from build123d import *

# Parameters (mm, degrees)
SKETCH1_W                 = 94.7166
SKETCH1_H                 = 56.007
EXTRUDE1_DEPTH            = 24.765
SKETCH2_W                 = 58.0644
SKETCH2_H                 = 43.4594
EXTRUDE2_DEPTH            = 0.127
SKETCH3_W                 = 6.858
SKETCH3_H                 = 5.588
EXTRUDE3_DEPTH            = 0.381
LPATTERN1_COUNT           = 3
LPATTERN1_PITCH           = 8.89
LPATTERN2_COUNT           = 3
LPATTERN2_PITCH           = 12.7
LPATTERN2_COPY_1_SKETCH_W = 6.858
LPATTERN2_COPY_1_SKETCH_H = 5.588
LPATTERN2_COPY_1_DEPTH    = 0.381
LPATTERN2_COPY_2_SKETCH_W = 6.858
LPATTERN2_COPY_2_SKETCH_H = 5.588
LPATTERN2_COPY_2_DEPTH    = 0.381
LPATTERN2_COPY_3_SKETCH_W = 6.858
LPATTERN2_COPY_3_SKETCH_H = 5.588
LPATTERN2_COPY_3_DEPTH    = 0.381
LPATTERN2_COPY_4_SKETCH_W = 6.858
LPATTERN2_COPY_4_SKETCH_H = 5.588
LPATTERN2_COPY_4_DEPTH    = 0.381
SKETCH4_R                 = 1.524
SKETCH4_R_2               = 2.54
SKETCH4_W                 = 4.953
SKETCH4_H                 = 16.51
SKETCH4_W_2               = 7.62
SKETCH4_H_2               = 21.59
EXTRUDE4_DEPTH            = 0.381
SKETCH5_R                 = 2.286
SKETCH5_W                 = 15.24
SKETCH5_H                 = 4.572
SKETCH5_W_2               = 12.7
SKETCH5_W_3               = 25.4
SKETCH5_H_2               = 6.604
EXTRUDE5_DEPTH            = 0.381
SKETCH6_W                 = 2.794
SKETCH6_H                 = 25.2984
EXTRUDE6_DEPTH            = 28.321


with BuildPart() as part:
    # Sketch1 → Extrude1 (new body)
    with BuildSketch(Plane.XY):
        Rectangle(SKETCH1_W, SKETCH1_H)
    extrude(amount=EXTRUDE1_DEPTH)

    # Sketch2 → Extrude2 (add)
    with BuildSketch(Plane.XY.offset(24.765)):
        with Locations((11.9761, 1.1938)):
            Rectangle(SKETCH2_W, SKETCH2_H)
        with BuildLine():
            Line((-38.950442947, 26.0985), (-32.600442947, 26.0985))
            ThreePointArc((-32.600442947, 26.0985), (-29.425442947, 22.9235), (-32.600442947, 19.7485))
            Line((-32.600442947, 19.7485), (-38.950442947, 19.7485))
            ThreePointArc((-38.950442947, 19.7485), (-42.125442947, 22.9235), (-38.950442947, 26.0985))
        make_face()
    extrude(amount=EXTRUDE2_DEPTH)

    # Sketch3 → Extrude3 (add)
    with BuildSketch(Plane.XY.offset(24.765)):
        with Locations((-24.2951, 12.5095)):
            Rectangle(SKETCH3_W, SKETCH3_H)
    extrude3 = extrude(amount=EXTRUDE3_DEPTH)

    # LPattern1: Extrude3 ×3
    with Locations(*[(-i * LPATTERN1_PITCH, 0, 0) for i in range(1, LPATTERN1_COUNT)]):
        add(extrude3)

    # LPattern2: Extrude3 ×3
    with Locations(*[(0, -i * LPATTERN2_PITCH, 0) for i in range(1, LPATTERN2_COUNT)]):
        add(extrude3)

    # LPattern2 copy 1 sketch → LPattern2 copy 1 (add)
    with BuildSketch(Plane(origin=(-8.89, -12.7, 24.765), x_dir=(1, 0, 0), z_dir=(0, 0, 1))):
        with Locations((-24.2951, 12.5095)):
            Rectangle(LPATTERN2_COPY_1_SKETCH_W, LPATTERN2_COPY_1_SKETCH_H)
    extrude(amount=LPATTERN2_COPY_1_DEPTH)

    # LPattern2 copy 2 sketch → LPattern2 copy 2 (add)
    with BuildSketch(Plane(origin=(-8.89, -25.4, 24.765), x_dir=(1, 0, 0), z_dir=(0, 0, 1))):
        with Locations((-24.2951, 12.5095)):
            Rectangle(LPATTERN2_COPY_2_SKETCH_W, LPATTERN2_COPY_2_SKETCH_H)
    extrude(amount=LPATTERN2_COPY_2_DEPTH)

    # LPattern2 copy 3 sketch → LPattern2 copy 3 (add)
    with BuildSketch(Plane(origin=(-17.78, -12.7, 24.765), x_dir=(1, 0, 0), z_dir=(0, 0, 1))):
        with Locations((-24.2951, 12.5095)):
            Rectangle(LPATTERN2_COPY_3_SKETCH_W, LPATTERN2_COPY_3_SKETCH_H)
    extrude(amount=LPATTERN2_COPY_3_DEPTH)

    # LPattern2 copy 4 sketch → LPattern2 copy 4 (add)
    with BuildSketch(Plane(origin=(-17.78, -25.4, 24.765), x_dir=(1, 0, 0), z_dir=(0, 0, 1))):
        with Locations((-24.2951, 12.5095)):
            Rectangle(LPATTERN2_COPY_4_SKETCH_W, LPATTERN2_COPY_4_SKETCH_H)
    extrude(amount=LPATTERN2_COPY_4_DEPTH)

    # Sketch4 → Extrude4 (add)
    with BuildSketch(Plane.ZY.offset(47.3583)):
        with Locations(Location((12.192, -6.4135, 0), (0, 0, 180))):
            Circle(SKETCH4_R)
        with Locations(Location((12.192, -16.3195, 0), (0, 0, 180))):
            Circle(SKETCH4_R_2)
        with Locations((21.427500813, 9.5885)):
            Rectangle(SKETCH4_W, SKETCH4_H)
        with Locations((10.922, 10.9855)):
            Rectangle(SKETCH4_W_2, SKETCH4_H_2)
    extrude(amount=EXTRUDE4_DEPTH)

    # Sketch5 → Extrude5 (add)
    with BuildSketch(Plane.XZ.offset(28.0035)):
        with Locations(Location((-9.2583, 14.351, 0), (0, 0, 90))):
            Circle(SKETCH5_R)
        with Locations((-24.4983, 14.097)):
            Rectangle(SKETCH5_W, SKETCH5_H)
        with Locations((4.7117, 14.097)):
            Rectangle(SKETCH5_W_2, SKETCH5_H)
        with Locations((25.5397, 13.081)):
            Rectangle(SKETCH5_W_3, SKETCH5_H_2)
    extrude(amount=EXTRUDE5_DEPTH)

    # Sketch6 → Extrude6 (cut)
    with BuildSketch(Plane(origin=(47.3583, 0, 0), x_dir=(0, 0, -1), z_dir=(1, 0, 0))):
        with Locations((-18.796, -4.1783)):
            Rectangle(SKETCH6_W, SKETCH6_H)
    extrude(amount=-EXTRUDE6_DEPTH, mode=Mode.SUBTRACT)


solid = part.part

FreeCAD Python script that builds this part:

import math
import FreeCAD as App
import Part
import Sketcher

V = App.Vector
Q = App.Units.Quantity


def add_polygon(sketch, points):
    """Adds a closed chain of lines whose ends are joined by coincident constraints."""
    first, n = sketch.GeometryCount, len(points)
    for a, b in zip(points, points[1:] + points[:1]):
        sketch.addGeometry(Part.LineSegment(App.Vector(*a, 0), App.Vector(*b, 0)), False)
    for i in range(n):
        sketch.addConstraint(Sketcher.Constraint("Coincident", first + i, 2, first + (i + 1) % n, 1))

doc = App.newDocument("Part")
params = doc.addObject("Spreadsheet::Sheet", "Params")
for row, (alias, value) in enumerate([
    ("sketch1_width", "3.729 in"),
    ("sketch1_height", "2.205 in"),
    ("pad1_length", "0.975 in"),
    ("sketch2_radius", "0.125 in"),
    ("sketch2_width", "0.25 in"),
    ("sketch2_width2", "2.286 in"),
    ("sketch2_height", "1.711 in"),
    ("pad2_length", "0.005 in"),
    ("sketch3_width", "0.27 in"),
    ("sketch3_height", "0.22 in"),
    ("pad3_length", "0.015 in"),
    ("linearpattern_pitch", "0.35 in"),
    ("linearpattern2_pitch", "0.5 in"),
    ("sketch4_width", "0.27 in"),
    ("sketch4_height", "0.22 in"),
    ("pad4_length", "0.015 in"),
    ("sketch5_width", "0.27 in"),
    ("sketch5_height", "0.22 in"),
    ("pad5_length", "0.015 in"),
    ("sketch6_width", "0.27 in"),
    ("sketch6_height", "0.22 in"),
    ("pad6_length", "0.015 in"),
    ("sketch7_width", "0.27 in"),
    ("sketch7_height", "0.22 in"),
    ("pad7_length", "0.015 in"),
    ("sketch8_diameter", "0.2 in"),
    ("sketch8_diameter2", "0.12 in"),
    ("sketch8_height", "0.3 in"),
    ("sketch8_width", "0.65 in"),
    ("sketch8_width2", "0.85 in"),
    ("pad8_length", "0.015 in"),
    ("sketch9_diameter", "0.18 in"),
    ("sketch9_width", "1 in"),
    ("sketch9_width2", "0.6 in"),
    ("sketch9_width3", "0.5 in"),
    ("sketch9_height", "0.18 in"),
    ("pad9_length", "0.015 in"),
    ("sketch10_height", "0.11 in"),
    ("sketch10_width", "0.996 in"),
    ("pocket1_length", "1.115 in"),
], start=1):
    params.set(f"A{row}", alias)
    params.set(f"B{row}", "=" + value)
    params.setAlias(f"B{row}", alias)

body = doc.addObject("PartDesign::Body", "Body")

sketch1 = body.newObject("Sketcher::SketchObject", "Sketch")
sketch1.AttachmentSupport = (doc.getObject("XY_Plane"), [""])
sketch1.MapMode = "FlatFace"
add_polygon(sketch1, [(-47.3583, 28.0035), (-47.3583, -28.0035), (47.3583, -28.0035), (47.3583, 28.0035)])
sketch1.addConstraint(Sketcher.Constraint("Vertical", 0))
sketch1.addConstraint(Sketcher.Constraint("Horizontal", 1))
sketch1.addConstraint(Sketcher.Constraint("Vertical", 2))
sketch1.addConstraint(Sketcher.Constraint("Horizontal", 3))
sketch1.addConstraint(Sketcher.Constraint("Symmetric", 0, 2, 2, 2, -1, 1))
sketch1.addConstraint(Sketcher.Constraint("DistanceX", 1, 1, 1, 2, Q("3.729 in")))
sketch1.addConstraint(Sketcher.Constraint("DistanceY", 0, 2, 0, 1, Q("2.205 in")))
sketch1.setExpression("Constraints[9]", "Params.sketch1_width")
sketch1.setExpression("Constraints[10]", "Params.sketch1_height")
pad1 = body.newObject("PartDesign::Pad", "Pad")
pad1.Profile = sketch1
pad1.setExpression("Length", "Params.pad1_length")

sketch2 = body.newObject("Sketcher::SketchObject", "Sketch001")
sketch2.AttachmentSupport = (doc.getObject("XY_Plane"), [""])
sketch2.MapMode = "FlatFace"
sketch2.AttachmentOffset = App.Placement(V(0, 0, 0.975 * 25.4), App.Rotation())
add_polygon(sketch2, [(-17.0561, 22.9235), (-17.0561, -20.5359), (41.0083, -20.5359), (41.0083, 22.9235)])
sketch2.addGeometry(Part.LineSegment(V(-32.600443, 26.0985, 0), V(-38.950443, 26.0985, 0)), False)
sketch2.addGeometry(Part.ArcOfCircle(Part.Circle(V(-38.950443, 22.9235, 0), V(0, 0, 1), 3.175), math.radians(90), math.radians(270)), False)
sketch2.addGeometry(Part.LineSegment(V(-38.950443, 19.7485, 0), V(-32.600443, 19.7485, 0)), False)
sketch2.addGeometry(Part.ArcOfCircle(Part.Circle(V(-32.600443, 22.9235, 0), V(0, 0, 1), 3.175), math.radians(-90), math.radians(90)), False)
sketch2.addConstraint(Sketcher.Constraint("Tangent", 4, 2, 5, 1))
sketch2.addConstraint(Sketcher.Constraint("Tangent", 5, 2, 6, 1))
sketch2.addConstraint(Sketcher.Constraint("Tangent", 6, 2, 7, 1))
sketch2.addConstraint(Sketcher.Constraint("Tangent", 7, 2, 4, 1))
sketch2.addConstraint(Sketcher.Constraint("Vertical", 0))
sketch2.addConstraint(Sketcher.Constraint("Horizontal", 1))
sketch2.addConstraint(Sketcher.Constraint("Vertical", 2))
sketch2.addConstraint(Sketcher.Constraint("Horizontal", 3))
sketch2.addConstraint(Sketcher.Constraint("Horizontal", 4))
sketch2.addConstraint(Sketcher.Constraint("Horizontal", 6))
sketch2.addConstraint(Sketcher.Constraint("Horizontal", 7, 3, 2, 2))
sketch2.addConstraint(Sketcher.Constraint("Radius", 5, Q("0.125 in")))
sketch2.addConstraint(Sketcher.Constraint("DistanceX", 4, 2, 4, 1, Q("0.25 in")))
sketch2.addConstraint(Sketcher.Constraint("DistanceX", 1, 1, 1, 2, Q("2.286 in")))
sketch2.addConstraint(Sketcher.Constraint("DistanceY", 0, 2, 0, 1, Q("1.711 in")))
sketch2.addConstraint(Sketcher.Constraint("DistanceY", -1, 1, 5, 3, Q("0.9025 in")))
sketch2.addConstraint(Sketcher.Constraint("DistanceX", 0, 2, -1, 1, Q("0.6715 in")))
sketch2.addConstraint(Sketcher.Constraint("DistanceX", 5, 3, -1, 1, 38.950443))
sketch2.setExpression("Constraints[15]", "Params.sketch2_radius")
sketch2.setExpression("Constraints[16]", "Params.sketch2_width")
sketch2.setExpression("Constraints[17]", "Params.sketch2_width2")
sketch2.setExpression("Constraints[18]", "Params.sketch2_height")
pad2 = body.newObject("PartDesign::Pad", "Pad001")
pad2.Profile = sketch2
pad2.setExpression("Length", "Params.pad2_length")

sketch3 = body.newObject("Sketcher::SketchObject", "Sketch002")
sketch3.AttachmentSupport = (doc.getObject("XY_Plane"), [""])
sketch3.MapMode = "FlatFace"
sketch3.AttachmentOffset = App.Placement(V(0, 0, 0.975 * 25.4), App.Rotation())
add_polygon(sketch3, [(-27.7241, 15.3035), (-27.7241, 9.7155), (-20.8661, 9.7155), (-20.8661, 15.3035)])
sketch3.addConstraint(Sketcher.Constraint("Vertical", 0))
sketch3.addConstraint(Sketcher.Constraint("Horizontal", 1))
sketch3.addConstraint(Sketcher.Constraint("Vertical", 2))
sketch3.addConstraint(Sketcher.Constraint("Horizontal", 3))
sketch3.addConstraint(Sketcher.Constraint("DistanceX", 1, 1, 1, 2, Q("0.27 in")))
sketch3.addConstraint(Sketcher.Constraint("DistanceY", 0, 2, 0, 1, Q("0.22 in")))
sketch3.addConstraint(Sketcher.Constraint("DistanceX", 0, 2, -1, 1, Q("1.0915 in")))
sketch3.addConstraint(Sketcher.Constraint("DistanceY", -1, 1, 0, 2, Q("0.3825 in")))
sketch3.setExpression("Constraints[8]", "Params.sketch3_width")
sketch3.setExpression("Constraints[9]", "Params.sketch3_height")
pad3 = body.newObject("PartDesign::Pad", "Pad002")
pad3.Profile = sketch3
pad3.setExpression("Length", "Params.pad3_length")
doc.recompute()

linearpattern = body.newObject("PartDesign::LinearPattern", "LinearPattern")
linearpattern.Originals = [pad3]
linearpattern.Direction = (doc.getObject("X_Axis"), [""])
linearpattern.Mode = "offset"
linearpattern.setExpression("Offset", "Params.linearpattern_pitch")
linearpattern.Occurrences = 3
linearpattern.Reversed = True
body.Tip = linearpattern
doc.recompute()

linearpattern2 = body.newObject("PartDesign::LinearPattern", "LinearPattern001")
linearpattern2.Originals = [pad3]
linearpattern2.Direction = (doc.getObject("Y_Axis"), [""])
linearpattern2.Mode = "offset"
linearpattern2.setExpression("Offset", "Params.linearpattern2_pitch")
linearpattern2.Occurrences = 3
linearpattern2.Reversed = True
body.Tip = linearpattern2

sketch4 = body.newObject("Sketcher::SketchObject", "Sketch003")
sketch4.AttachmentSupport = (doc.getObject("XY_Plane"), [""])
sketch4.MapMode = "FlatFace"
sketch4.AttachmentOffset = App.Placement(V(0, 0, 0.975 * 25.4), App.Rotation())
add_polygon(sketch4, [(-36.6141, 2.6035), (-36.6141, -2.9845), (-29.7561, -2.9845), (-29.7561, 2.6035)])
sketch4.addConstraint(Sketcher.Constraint("Vertical", 0))
sketch4.addConstraint(Sketcher.Constraint("Horizontal", 1))
sketch4.addConstraint(Sketcher.Constraint("Vertical", 2))
sketch4.addConstraint(Sketcher.Constraint("Horizontal", 3))
sketch4.addConstraint(Sketcher.Constraint("DistanceX", 1, 1, 1, 2, Q("0.27 in")))
sketch4.addConstraint(Sketcher.Constraint("DistanceY", 0, 2, 0, 1, Q("0.22 in")))
sketch4.addConstraint(Sketcher.Constraint("DistanceX", 0, 2, -1, 1, Q("1.4415 in")))
sketch4.addConstraint(Sketcher.Constraint("DistanceY", 0, 2, -1, 1, Q("0.1175 in")))
sketch4.setExpression("Constraints[8]", "Params.sketch4_width")
sketch4.setExpression("Constraints[9]", "Params.sketch4_height")
pad4 = body.newObject("PartDesign::Pad", "Pad003")
pad4.Profile = sketch4
pad4.setExpression("Length", "Params.pad4_length")

sketch5 = body.newObject("Sketcher::SketchObject", "Sketch004")
sketch5.AttachmentSupport = (doc.getObject("XY_Plane"), [""])
sketch5.MapMode = "FlatFace"
sketch5.AttachmentOffset = App.Placement(V(0, 0, 0.975 * 25.4), App.Rotation())
add_polygon(sketch5, [(-36.6141, -10.0965), (-36.6141, -15.6845), (-29.7561, -15.6845), (-29.7561, -10.0965)])
sketch5.addConstraint(Sketcher.Constraint("Vertical", 0))
sketch5.addConstraint(Sketcher.Constraint("Horizontal", 1))
sketch5.addConstraint(Sketcher.Constraint("Vertical", 2))
sketch5.addConstraint(Sketcher.Constraint("Horizontal", 3))
sketch5.addConstraint(Sketcher.Constraint("DistanceX", 1, 1, 1, 2, Q("0.27 in")))
sketch5.addConstraint(Sketcher.Constraint("DistanceY", 0, 2, 0, 1, Q("0.22 in")))
sketch5.addConstraint(Sketcher.Constraint("DistanceX", 0, 2, -1, 1, Q("1.4415 in")))
sketch5.addConstraint(Sketcher.Constraint("DistanceY", 0, 2, -1, 1, Q("0.6175 in")))
sketch5.setExpression("Constraints[8]", "Params.sketch5_width")
sketch5.setExpression("Constraints[9]", "Params.sketch5_height")
pad5 = body.newObject("PartDesign::Pad", "Pad004")
pad5.Profile = sketch5
pad5.setExpression("Length", "Params.pad5_length")

sketch6 = body.newObject("Sketcher::SketchObject", "Sketch005")
sketch6.AttachmentSupport = (doc.getObject("XY_Plane"), [""])
sketch6.MapMode = "FlatFace"
sketch6.AttachmentOffset = App.Placement(V(0, 0, 0.975 * 25.4), App.Rotation())
add_polygon(sketch6, [(-45.5041, 2.6035), (-45.5041, -2.9845), (-38.6461, -2.9845), (-38.6461, 2.6035)])
sketch6.addConstraint(Sketcher.Constraint("Vertical", 0))
sketch6.addConstraint(Sketcher.Constraint("Horizontal", 1))
sketch6.addConstraint(Sketcher.Constraint("Vertical", 2))
sketch6.addConstraint(Sketcher.Constraint("Horizontal", 3))
sketch6.addConstraint(Sketcher.Constraint("DistanceX", 1, 1, 1, 2, Q("0.27 in")))
sketch6.addConstraint(Sketcher.Constraint("DistanceY", 0, 2, 0, 1, Q("0.22 in")))
sketch6.addConstraint(Sketcher.Constraint("DistanceX", 0, 2, -1, 1, Q("1.7915 in")))
sketch6.addConstraint(Sketcher.Constraint("DistanceY", 0, 2, -1, 1, Q("0.1175 in")))
sketch6.setExpression("Constraints[8]", "Params.sketch6_width")
sketch6.setExpression("Constraints[9]", "Params.sketch6_height")
pad6 = body.newObject("PartDesign::Pad", "Pad005")
pad6.Profile = sketch6
pad6.setExpression("Length", "Params.pad6_length")

sketch7 = body.newObject("Sketcher::SketchObject", "Sketch006")
sketch7.AttachmentSupport = (doc.getObject("XY_Plane"), [""])
sketch7.MapMode = "FlatFace"
sketch7.AttachmentOffset = App.Placement(V(0, 0, 0.975 * 25.4), App.Rotation())
add_polygon(sketch7, [(-45.5041, -10.0965), (-45.5041, -15.6845), (-38.6461, -15.6845), (-38.6461, -10.0965)])
sketch7.addConstraint(Sketcher.Constraint("Vertical", 0))
sketch7.addConstraint(Sketcher.Constraint("Horizontal", 1))
sketch7.addConstraint(Sketcher.Constraint("Vertical", 2))
sketch7.addConstraint(Sketcher.Constraint("Horizontal", 3))
sketch7.addConstraint(Sketcher.Constraint("DistanceX", 1, 1, 1, 2, Q("0.27 in")))
sketch7.addConstraint(Sketcher.Constraint("DistanceY", 0, 2, 0, 1, Q("0.22 in")))
sketch7.addConstraint(Sketcher.Constraint("DistanceX", 0, 2, -1, 1, Q("1.7915 in")))
sketch7.addConstraint(Sketcher.Constraint("DistanceY", 0, 2, -1, 1, Q("0.6175 in")))
sketch7.setExpression("Constraints[8]", "Params.sketch7_width")
sketch7.setExpression("Constraints[9]", "Params.sketch7_height")
pad7 = body.newObject("PartDesign::Pad", "Pad006")
pad7.Profile = sketch7
pad7.setExpression("Length", "Params.pad7_length")

sketch8 = body.newObject("Sketcher::SketchObject", "Sketch007")
sketch8.AttachmentSupport = (doc.getObject("YZ_Plane"), [""])
sketch8.MapMode = "FlatFace"
sketch8.AttachmentOffset = App.Placement(V(0, 0, -1.8645 * 25.4), App.Rotation())
sketch8.addGeometry(Part.Circle(V(-6.4135, 12.192, 0), V(0, 0, 1), 1.524), False)
sketch8.addGeometry(Part.Circle(V(-16.3195, 12.192, 0), V(0, 0, 1), 2.54), False)
add_polygon(sketch8, [(17.8435, 18.951001), (1.3335, 18.951001), (1.3335, 23.904001), (17.8435, 23.904001)])
add_polygon(sketch8, [(21.7805, 7.112), (0.1905, 7.112), (0.1905, 14.732), (21.7805, 14.732)])
sketch8.addConstraint(Sketcher.Constraint("Horizontal", 2))
sketch8.addConstraint(Sketcher.Constraint("Vertical", 3))
sketch8.addConstraint(Sketcher.Constraint("Horizontal", 4))
sketch8.addConstraint(Sketcher.Constraint("Vertical", 5))
sketch8.addConstraint(Sketcher.Constraint("Horizontal", 6))
sketch8.addConstraint(Sketcher.Constraint("Vertical", 7))
sketch8.addConstraint(Sketcher.Constraint("Horizontal", 8))
sketch8.addConstraint(Sketcher.Constraint("Vertical", 9))
sketch8.addConstraint(Sketcher.Constraint("Horizontal", 0, 3, 1, 3))
sketch8.addConstraint(Sketcher.Constraint("Diameter", 1, Q("0.2 in")))
sketch8.addConstraint(Sketcher.Constraint("Diameter", 0, Q("0.12 in")))
sketch8.addConstraint(Sketcher.Constraint("DistanceY", 7, 1, 7, 2, Q("0.3 in")))
sketch8.addConstraint(Sketcher.Constraint("DistanceX", 2, 2, 2, 1, Q("0.65 in")))
sketch8.addConstraint(Sketcher.Constraint("DistanceX", 6, 2, 6, 1, Q("0.85 in")))
sketch8.addConstraint(Sketcher.Constraint("DistanceY", 6, 2, 0, 3, Q("0.2 in")))
sketch8.addConstraint(Sketcher.Constraint("DistanceY", 3, 1, 3, 2, Q("0.195 in")))
sketch8.addConstraint(Sketcher.Constraint("DistanceY", -1, 1, 0, 3, Q("0.48 in")))
sketch8.addConstraint(Sketcher.Constraint("DistanceX", 1, 3, 0, 3, Q("0.39 in")))
sketch8.addConstraint(Sketcher.Constraint("DistanceX", 0, 3, 6, 2, Q("0.26 in")))
sketch8.addConstraint(Sketcher.Constraint("DistanceX", 0, 3, 2, 2, Q("0.305 in")))
sketch8.addConstraint(Sketcher.Constraint("DistanceX", 0, 3, -1, 1, Q("0.2525 in")))
sketch8.addConstraint(Sketcher.Constraint("DistanceY", -1, 1, 2, 2, 18.951001))
sketch8.setExpression("Constraints[17]", "Params.sketch8_diameter")
sketch8.setExpression("Constraints[18]", "Params.sketch8_diameter2")
sketch8.setExpression("Constraints[19]", "Params.sketch8_height")
sketch8.setExpression("Constraints[20]", "Params.sketch8_width")
sketch8.setExpression("Constraints[21]", "Params.sketch8_width2")
pad8 = body.newObject("PartDesign::Pad", "Pad007")
pad8.Profile = sketch8
pad8.setExpression("Length", "Params.pad8_length")
pad8.Reversed = True

sketch9 = body.newObject("Sketcher::SketchObject", "Sketch008")
sketch9.AttachmentSupport = (doc.getObject("XZ_Plane"), [""])
sketch9.MapMode = "FlatFace"
sketch9.AttachmentOffset = App.Placement(V(0, 0, 1.1025 * 25.4), App.Rotation())
sketch9.addGeometry(Part.Circle(V(-9.2583, 14.351, 0), V(0, 0, 1), 2.286), False)
add_polygon(sketch9, [(-32.1183, 16.383), (-32.1183, 11.811), (-16.8783, 11.811), (-16.8783, 16.383)])
add_polygon(sketch9, [(-1.6383, 16.383), (-1.6383, 11.811), (11.0617, 11.811), (11.0617, 16.383)])
add_polygon(sketch9, [(12.8397, 16.383), (12.8397, 9.779), (38.2397, 9.779), (38.2397, 16.383)])
sketch9.addConstraint(Sketcher.Constraint("Vertical", 1))
sketch9.addConstraint(Sketcher.Constraint("Horizontal", 2))
sketch9.addConstraint(Sketcher.Constraint("Vertical", 3))
sketch9.addConstraint(Sketcher.Constraint("Horizontal", 4))
sketch9.addConstraint(Sketcher.Constraint("Vertical", 5))
sketch9.addConstraint(Sketcher.Constraint("Horizontal", 6))
sketch9.addConstraint(Sketcher.Constraint("Vertical", 7))
sketch9.addConstraint(Sketcher.Constraint("Horizontal", 8))
sketch9.addConstraint(Sketcher.Constraint("Vertical", 9))
sketch9.addConstraint(Sketcher.Constraint("Horizontal", 10))
sketch9.addConstraint(Sketcher.Constraint("Vertical", 11))
sketch9.addConstraint(Sketcher.Constraint("Horizontal", 12))
sketch9.addConstraint(Sketcher.Constraint("Horizontal", 2, 2, 5, 2))
sketch9.addConstraint(Sketcher.Constraint("Horizontal", 4, 2, 7, 2))
sketch9.addConstraint(Sketcher.Constraint("Horizontal", 8, 2, 11, 2))
sketch9.addConstraint(Sketcher.Constraint("Diameter", 0, Q("0.18 in")))
sketch9.addConstraint(Sketcher.Constraint("DistanceX", 10, 1, 10, 2, Q("1 in")))
sketch9.addConstraint(Sketcher.Constraint("DistanceX", 2, 1, 2, 2, Q("0.6 in")))
sketch9.addConstraint(Sketcher.Constraint("DistanceX", 6, 1, 6, 2, Q("0.5 in")))
sketch9.addConstraint(Sketcher.Constraint("DistanceY", 1, 2, 1, 1, Q("0.18 in")))
sketch9.addConstraint(Sketcher.Constraint("DistanceY", 9, 2, 9, 1, Q("0.26 in")))
sketch9.addConstraint(Sketcher.Constraint("DistanceX", 1, 2, 0, 3, Q("0.9 in")))
sketch9.addConstraint(Sketcher.Constraint("DistanceY", 1, 2, 0, 3, Q("0.1 in")))
sketch9.addConstraint(Sketcher.Constraint("DistanceX", 0, 3, 5, 2, Q("0.3 in")))
sketch9.addConstraint(Sketcher.Constraint("DistanceX", 6, 2, 9, 2, Q("0.07 in")))
sketch9.addConstraint(Sketcher.Constraint("DistanceY", -1, 1, 0, 3, Q("0.565 in")))
sketch9.addConstraint(Sketcher.Constraint("DistanceX", 0, 3, -1, 1, Q("0.3645 in")))
sketch9.setExpression("Constraints[27]", "Params.sketch9_diameter")
sketch9.setExpression("Constraints[28]", "Params.sketch9_width")
sketch9.setExpression("Constraints[29]", "Params.sketch9_width2")
sketch9.setExpression("Constraints[30]", "Params.sketch9_width3")
sketch9.setExpression("Constraints[31]", "Params.sketch9_height")
pad9 = body.newObject("PartDesign::Pad", "Pad008")
pad9.Profile = sketch9
pad9.setExpression("Length", "Params.pad9_length")

sketch10 = body.newObject("Sketcher::SketchObject", "Sketch009")
sketch10.AttachmentSupport = (doc.getObject("YZ_Plane"), [""])
sketch10.MapMode = "FlatFace"
sketch10.AttachmentOffset = App.Placement(V(0, 0, 1.8645 * 25.4), App.Rotation())
add_polygon(sketch10, [(8.4709, 20.193), (-16.8275, 20.193), (-16.8275, 17.399), (8.4709, 17.399)])
sketch10.addConstraint(Sketcher.Constraint("Horizontal", 0))
sketch10.addConstraint(Sketcher.Constraint("Vertical", 1))
sketch10.addConstraint(Sketcher.Constraint("Horizontal", 2))
sketch10.addConstraint(Sketcher.Constraint("Vertical", 3))
sketch10.addConstraint(Sketcher.Constraint("DistanceY", 1, 2, 1, 1, Q("0.11 in")))
sketch10.addConstraint(Sketcher.Constraint("DistanceX", 0, 2, 0, 1, Q("0.996 in")))
sketch10.addConstraint(Sketcher.Constraint("DistanceY", -1, 1, 0, 2, Q("0.795 in")))
sketch10.addConstraint(Sketcher.Constraint("DistanceX", 0, 2, -1, 1, Q("0.6625 in")))
sketch10.setExpression("Constraints[8]", "Params.sketch10_height")
sketch10.setExpression("Constraints[9]", "Params.sketch10_width")
pocket1 = body.newObject("PartDesign::Pocket", "Pocket")
pocket1.Profile = sketch10
pocket1.setExpression("Length", "Params.pocket1_length")

doc.recompute()
